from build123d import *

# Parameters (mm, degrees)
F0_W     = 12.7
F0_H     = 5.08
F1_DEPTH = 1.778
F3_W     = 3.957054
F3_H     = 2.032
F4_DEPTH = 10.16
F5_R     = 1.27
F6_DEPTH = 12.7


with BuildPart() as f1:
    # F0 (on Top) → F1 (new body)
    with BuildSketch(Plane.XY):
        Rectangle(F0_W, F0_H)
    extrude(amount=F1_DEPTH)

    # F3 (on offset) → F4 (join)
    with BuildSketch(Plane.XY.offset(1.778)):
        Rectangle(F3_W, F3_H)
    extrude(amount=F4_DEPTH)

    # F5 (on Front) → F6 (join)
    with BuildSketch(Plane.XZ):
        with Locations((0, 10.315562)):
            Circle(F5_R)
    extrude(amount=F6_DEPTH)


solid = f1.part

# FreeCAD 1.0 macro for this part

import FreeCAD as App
import Part
import Sketcher

V = App.Vector
Q = App.Units.Quantity


def add_polygon(sketch, points):
    """Adds a closed chain of lines whose ends are joined by coincident constraints."""
    first, n = sketch.GeometryCount, len(points)
    for a, b in zip(points, points[1:] + points[:1]):
        sketch.addGeometry(Part.LineSegment(App.Vector(*a, 0), App.Vector(*b, 0)), False)
    for i in range(n):
        sketch.addConstraint(Sketcher.Constraint("Coincident", first + i, 2, first + (i + 1) % n, 1))

doc = App.newDocument("Part")
params = doc.addObject("Spreadsheet::Sheet", "Params")
for row, (alias, value) in enumerate([
    ("sketch1_width", "0.5 in"),
    ("sketch1_height", "0.2 in"),
    ("pad1_length", "0.07 in"),
    ("sketch2_height", "0.08 in"),
    ("pad2_length", "0.4 in"),
    ("sketch3_diameter", "0.1 in"),
    ("pad3_length", "0.5 in"),
], start=1):
    params.set(f"A{row}", alias)
    params.set(f"B{row}", "=" + value)
    params.setAlias(f"B{row}", alias)

body = doc.addObject("PartDesign::Body", "Body")

# Sketch on XY plane
sketch1 = body.newObject("Sketcher::SketchObject", "Sketch")
sketch1.AttachmentSupport = (doc.getObject("XY_Plane"), [""])
sketch1.MapMode = "FlatFace"
add_polygon(sketch1, [(-6, 3), (-6, -3), (6, -3), (6, 3)])  # lines 0-3
sketch1.addConstraint([
    Sketcher.Constraint("Vertical", 0),
    Sketcher.Constraint("Horizontal", 1),
    Sketcher.Constraint("Vertical", 2),
    Sketcher.Constraint("Horizontal", 3),
    Sketcher.Constraint("Symmetric", 0, 2, 2, 2, -1, 1),
    Sketcher.Constraint("DistanceX", 1, 1, 1, 2, Q("0.5 in")),
    Sketcher.Constraint("DistanceY", 0, 2, 0, 1, Q("0.2 in")),
])
sketch1.setExpression("Constraints[9]", "Params.sketch1_width")
sketch1.setExpression("Constraints[10]", "Params.sketch1_height")
pad1 = body.newObject("PartDesign::Pad", "Pad")
pad1.Profile = sketch1
pad1.setExpression("Length", "Params.pad1_length")

# Sketch on XY plane
sketch2 = body.newObject("Sketcher::SketchObject", "Sketch001")
sketch2.AttachmentSupport = (doc.getObject("XY_Plane"), [""])
sketch2.MapMode = "FlatFace"
sketch2.AttachmentOffset = App.Placement(V(0, 0, 0.07 * 25.4), App.Rotation())
add_polygon(sketch2, [(-2, 1), (-2, -1), (2, -1), (2, 1)])  # lines 0-3
sketch2.addConstraint([
    Sketcher.Constraint("Vertical", 0),
    Sketcher.Constraint("Horizontal", 1),
    Sketcher.Constraint("Vertical", 2),
    Sketcher.Constraint("Horizontal", 3),
    Sketcher.Constraint("Symmetric", 0, 2, 2, 2, -1, 1),
    Sketcher.Constraint("DistanceY", 0, 2, 0, 1, Q("0.08 in")),
    Sketcher.Constraint("DistanceX", 1, 1, 1, 2, Q("3.957054 mm")),
])
sketch2.setExpression("Constraints[9]", "Params.sketch2_height")
pad2 = body.newObject("PartDesign::Pad", "Pad001")
pad2.Profile = sketch2
pad2.setExpression("Length", "Params.pad2_length")

# Sketch on XZ plane
sketch3 = body.newObject("Sketcher::SketchObject", "Sketch002")
sketch3.AttachmentSupport = (doc.getObject("XZ_Plane"), [""])
sketch3.MapMode = "FlatFace"
sketch3.addGeometry(Part.Circle(V(0, 10.3, 0), V(0, 0, 1), 1.3), False)
sketch3.addConstraint([
    Sketcher.Constraint("PointOnObject", 0, 3, -2),
    Sketcher.Constraint("Diameter", 0, Q("0.1 in")),
    Sketcher.Constraint("DistanceY", -1, 1, 0, 3, Q("10.315562 mm")),
])
sketch3.setExpression("Constraints[1]", "Params.sketch3_diameter")
pad3 = body.newObject("PartDesign::Pad", "Pad002")
pad3.Profile = sketch3
pad3.setExpression("Length", "Params.pad3_length")

doc.recompute()
